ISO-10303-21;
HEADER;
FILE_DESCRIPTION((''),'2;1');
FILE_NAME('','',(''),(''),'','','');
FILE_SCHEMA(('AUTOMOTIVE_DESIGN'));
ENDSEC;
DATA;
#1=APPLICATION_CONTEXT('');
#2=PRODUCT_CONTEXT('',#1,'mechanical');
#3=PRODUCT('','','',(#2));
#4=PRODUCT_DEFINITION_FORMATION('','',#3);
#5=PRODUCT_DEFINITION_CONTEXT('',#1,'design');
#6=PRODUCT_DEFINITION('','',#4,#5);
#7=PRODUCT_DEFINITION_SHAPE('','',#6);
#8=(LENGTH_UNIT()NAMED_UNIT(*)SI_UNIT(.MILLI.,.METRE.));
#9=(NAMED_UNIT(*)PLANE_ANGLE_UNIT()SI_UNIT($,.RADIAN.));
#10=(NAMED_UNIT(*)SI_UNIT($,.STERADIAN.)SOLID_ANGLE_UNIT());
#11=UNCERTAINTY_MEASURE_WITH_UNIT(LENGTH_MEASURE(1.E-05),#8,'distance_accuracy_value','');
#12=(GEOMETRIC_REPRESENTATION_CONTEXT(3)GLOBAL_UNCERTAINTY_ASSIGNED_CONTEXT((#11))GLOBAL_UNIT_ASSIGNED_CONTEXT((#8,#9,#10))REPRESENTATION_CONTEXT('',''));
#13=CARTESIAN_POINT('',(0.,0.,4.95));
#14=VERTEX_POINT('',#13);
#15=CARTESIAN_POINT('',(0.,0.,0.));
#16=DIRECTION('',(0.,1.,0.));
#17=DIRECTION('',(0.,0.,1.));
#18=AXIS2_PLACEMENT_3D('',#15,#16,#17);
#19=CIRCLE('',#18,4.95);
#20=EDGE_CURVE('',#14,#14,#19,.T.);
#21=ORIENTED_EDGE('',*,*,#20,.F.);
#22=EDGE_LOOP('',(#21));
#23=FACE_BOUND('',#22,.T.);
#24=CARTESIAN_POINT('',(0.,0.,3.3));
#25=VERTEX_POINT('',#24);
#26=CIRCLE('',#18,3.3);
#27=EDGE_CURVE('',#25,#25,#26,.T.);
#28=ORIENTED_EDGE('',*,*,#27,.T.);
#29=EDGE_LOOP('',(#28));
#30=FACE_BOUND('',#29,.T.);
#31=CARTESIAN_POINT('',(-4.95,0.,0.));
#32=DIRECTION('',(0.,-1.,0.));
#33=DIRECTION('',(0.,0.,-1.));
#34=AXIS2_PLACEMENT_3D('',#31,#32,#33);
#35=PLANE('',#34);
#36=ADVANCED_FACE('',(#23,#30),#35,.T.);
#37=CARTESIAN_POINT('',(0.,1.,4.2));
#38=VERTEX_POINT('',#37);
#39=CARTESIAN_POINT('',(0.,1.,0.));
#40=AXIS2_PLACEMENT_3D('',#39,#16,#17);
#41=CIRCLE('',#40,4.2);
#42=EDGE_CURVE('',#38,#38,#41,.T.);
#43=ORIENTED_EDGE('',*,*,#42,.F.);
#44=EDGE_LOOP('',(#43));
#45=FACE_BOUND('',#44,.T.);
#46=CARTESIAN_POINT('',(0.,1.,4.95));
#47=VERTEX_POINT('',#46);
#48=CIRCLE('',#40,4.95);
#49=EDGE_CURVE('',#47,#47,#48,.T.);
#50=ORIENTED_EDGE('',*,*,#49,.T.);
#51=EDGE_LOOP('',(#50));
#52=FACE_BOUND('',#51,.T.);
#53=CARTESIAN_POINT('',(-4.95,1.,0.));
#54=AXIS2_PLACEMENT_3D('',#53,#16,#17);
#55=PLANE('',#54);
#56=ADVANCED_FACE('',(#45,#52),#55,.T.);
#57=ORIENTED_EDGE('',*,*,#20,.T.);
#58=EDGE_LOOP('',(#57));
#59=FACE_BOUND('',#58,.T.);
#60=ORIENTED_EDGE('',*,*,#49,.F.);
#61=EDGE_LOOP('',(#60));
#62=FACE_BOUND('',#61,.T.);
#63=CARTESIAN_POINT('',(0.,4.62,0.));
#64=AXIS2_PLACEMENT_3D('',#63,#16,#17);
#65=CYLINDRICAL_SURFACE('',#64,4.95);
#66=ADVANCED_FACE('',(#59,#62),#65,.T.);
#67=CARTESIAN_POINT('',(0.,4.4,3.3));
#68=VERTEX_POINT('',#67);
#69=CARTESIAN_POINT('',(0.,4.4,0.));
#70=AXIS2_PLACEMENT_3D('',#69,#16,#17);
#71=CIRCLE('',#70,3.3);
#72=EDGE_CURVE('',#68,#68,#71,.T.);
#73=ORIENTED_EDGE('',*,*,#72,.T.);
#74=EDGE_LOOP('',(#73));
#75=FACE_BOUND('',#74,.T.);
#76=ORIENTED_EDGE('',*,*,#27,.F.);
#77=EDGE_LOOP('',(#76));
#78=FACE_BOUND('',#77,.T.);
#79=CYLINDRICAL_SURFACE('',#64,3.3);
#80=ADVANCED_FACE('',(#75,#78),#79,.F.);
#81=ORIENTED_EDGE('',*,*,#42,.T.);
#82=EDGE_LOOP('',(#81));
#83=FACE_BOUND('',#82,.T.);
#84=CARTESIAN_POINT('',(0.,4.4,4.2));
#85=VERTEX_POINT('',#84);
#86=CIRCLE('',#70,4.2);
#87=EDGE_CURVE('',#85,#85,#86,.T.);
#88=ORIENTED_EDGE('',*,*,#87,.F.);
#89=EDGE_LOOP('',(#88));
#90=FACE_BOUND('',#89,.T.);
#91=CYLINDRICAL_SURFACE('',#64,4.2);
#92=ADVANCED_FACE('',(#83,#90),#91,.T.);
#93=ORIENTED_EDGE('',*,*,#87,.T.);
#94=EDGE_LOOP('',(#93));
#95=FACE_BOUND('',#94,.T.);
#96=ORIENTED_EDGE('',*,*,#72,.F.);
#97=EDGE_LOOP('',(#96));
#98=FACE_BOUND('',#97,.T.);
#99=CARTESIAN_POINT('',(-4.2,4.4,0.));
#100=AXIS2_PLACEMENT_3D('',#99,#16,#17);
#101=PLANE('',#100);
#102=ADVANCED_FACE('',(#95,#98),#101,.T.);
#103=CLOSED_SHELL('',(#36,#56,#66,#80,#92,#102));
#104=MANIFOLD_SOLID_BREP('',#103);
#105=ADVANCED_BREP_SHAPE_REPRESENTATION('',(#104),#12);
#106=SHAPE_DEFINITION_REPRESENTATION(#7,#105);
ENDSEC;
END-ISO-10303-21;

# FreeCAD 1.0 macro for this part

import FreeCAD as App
import Part
import Sketcher

V = App.Vector
Q = App.Units.Quantity

doc = App.newDocument("Part")
body = doc.addObject("PartDesign::Body", "Body")

sketch1 = body.newObject("Sketcher::SketchObject", "Sketch")
sketch1.AttachmentSupport = (doc.getObject("XY_Plane"), [""])
sketch1.MapMode = "FlatFace"
sketch1.addGeometry([
    Part.LineSegment(V(-5, 0, 0), V(-3.3, 0, 0)),
    Part.LineSegment(V(-3.3, 0, 0), V(-3.3, 4.4, 0)),
    Part.LineSegment(V(-3.3, 4.4, 0), V(-4.2, 4.4, 0)),
    Part.LineSegment(V(-4.2, 4.4, 0), V(-4.2, 1, 0)),
    Part.LineSegment(V(-4.2, 1, 0), V(-5, 1, 0)),
    Part.LineSegment(V(-5, 1, 0), V(-5, 0, 0)),
], False)
sketch1.addConstraint([
    Sketcher.Constraint("Coincident", 0, 2, 1, 1),
    Sketcher.Constraint("Coincident", 1, 2, 2, 1),
    Sketcher.Constraint("Coincident", 2, 2, 3, 1),
    Sketcher.Constraint("Coincident", 3, 2, 4, 1),
    Sketcher.Constraint("Coincident", 4, 2, 5, 1),
    Sketcher.Constraint("Coincident", 5, 2, 0, 1),
    Sketcher.Constraint("Horizontal", 0),
    Sketcher.Constraint("Vertical", 1),
    Sketcher.Constraint("Horizontal", 2),
    Sketcher.Constraint("Vertical", 3),
    Sketcher.Constraint("Horizontal", 4),
    Sketcher.Constraint("Vertical", 5),
    Sketcher.Constraint("PointOnObject", 0, 2, -1),
    Sketcher.Constraint("DistanceY", 5, 2, 5, 1, Q("1 mm")),
    Sketcher.Constraint("DistanceX", 2, 2, 2, 1, Q("0.9 mm")),
    Sketcher.Constraint("DistanceY", 1, 1, 1, 2, Q("4.4 mm")),
    Sketcher.Constraint("DistanceX", 0, 1, 0, 2, Q("1.65 mm")),
    Sketcher.Constraint("DistanceX", 0, 2, -1, 1, Q("3.3 mm")),
])
revolution = body.newObject("PartDesign::Revolution", "Revolution")
revolution.Profile = sketch1
revolution.ReferenceAxis = (sketch1, ["V_Axis"])
revolution.Angle = 360

doc.recompute()
